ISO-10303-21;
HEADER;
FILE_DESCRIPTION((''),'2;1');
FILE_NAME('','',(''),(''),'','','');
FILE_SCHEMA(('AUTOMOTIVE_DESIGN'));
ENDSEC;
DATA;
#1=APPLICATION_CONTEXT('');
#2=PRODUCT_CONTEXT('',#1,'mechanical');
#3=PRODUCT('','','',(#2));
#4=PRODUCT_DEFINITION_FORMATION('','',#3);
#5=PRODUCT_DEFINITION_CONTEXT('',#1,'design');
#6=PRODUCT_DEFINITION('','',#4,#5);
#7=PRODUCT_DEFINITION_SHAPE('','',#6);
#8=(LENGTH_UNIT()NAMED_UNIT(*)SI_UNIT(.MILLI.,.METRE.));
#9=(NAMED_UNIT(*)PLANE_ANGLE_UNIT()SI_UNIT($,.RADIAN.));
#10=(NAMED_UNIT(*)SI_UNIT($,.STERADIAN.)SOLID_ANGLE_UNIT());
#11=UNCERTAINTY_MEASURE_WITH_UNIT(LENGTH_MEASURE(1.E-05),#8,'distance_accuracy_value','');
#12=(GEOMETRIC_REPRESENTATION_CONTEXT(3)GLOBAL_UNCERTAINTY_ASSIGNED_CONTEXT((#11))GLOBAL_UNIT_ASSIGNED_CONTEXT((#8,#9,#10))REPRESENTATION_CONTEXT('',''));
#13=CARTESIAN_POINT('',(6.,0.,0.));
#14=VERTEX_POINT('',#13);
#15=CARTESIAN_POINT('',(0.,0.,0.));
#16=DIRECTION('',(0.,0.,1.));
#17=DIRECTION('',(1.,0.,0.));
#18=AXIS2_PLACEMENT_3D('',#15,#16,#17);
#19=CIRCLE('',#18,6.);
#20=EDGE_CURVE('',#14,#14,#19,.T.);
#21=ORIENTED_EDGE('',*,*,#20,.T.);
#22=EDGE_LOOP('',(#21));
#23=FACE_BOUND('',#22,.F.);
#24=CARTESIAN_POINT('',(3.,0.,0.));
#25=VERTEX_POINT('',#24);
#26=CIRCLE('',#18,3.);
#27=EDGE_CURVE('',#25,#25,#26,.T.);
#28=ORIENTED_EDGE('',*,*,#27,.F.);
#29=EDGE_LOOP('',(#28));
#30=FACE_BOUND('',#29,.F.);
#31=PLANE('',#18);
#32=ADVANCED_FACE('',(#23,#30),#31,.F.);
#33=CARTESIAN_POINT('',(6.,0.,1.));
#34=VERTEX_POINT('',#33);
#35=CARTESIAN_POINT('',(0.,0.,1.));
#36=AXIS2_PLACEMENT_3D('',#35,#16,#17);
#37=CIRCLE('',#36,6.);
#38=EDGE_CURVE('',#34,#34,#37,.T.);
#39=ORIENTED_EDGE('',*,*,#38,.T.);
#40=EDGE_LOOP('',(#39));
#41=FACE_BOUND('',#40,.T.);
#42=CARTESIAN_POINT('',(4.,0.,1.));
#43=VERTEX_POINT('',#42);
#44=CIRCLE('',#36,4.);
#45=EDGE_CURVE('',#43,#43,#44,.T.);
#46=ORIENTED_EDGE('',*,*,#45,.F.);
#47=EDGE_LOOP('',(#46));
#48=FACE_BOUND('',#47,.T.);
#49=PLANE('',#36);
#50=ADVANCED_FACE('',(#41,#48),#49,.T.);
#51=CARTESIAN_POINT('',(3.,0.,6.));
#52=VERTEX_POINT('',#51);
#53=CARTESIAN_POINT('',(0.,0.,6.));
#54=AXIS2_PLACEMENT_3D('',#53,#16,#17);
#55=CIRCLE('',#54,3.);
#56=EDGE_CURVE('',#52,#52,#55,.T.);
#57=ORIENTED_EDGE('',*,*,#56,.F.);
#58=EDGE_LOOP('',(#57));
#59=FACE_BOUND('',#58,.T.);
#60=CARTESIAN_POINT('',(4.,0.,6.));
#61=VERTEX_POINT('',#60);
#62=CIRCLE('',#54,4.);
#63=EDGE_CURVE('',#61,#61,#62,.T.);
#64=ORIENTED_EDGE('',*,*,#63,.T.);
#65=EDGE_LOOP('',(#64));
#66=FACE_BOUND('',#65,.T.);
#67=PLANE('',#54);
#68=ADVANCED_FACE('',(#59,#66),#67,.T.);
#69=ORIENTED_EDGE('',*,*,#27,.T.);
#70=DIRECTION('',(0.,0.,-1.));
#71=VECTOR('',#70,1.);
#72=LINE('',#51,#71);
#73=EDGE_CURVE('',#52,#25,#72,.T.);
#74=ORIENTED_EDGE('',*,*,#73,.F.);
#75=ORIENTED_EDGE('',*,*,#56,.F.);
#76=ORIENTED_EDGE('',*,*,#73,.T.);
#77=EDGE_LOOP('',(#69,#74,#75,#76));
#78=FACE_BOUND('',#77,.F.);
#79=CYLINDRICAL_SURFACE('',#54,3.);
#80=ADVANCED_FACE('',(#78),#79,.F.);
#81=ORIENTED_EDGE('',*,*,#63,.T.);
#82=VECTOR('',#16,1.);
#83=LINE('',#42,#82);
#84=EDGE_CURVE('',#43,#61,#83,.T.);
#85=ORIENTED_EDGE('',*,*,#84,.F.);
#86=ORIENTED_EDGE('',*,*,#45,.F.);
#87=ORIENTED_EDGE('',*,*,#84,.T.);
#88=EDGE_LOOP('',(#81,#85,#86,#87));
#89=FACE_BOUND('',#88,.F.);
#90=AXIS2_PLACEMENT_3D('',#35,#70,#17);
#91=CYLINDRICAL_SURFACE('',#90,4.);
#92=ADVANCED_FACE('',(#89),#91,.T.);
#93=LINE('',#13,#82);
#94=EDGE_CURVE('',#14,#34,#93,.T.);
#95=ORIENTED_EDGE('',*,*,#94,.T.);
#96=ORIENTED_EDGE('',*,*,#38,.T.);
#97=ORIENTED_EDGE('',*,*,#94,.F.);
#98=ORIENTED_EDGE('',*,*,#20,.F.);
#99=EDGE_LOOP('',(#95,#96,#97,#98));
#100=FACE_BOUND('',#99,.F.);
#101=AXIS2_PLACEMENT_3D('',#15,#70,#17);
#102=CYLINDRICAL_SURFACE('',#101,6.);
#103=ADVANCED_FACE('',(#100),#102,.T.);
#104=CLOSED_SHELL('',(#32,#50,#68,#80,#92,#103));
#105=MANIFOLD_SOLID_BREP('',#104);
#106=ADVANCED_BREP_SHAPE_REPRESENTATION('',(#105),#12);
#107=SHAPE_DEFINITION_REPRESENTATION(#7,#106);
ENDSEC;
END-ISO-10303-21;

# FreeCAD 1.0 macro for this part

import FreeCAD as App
import Part
import Sketcher
from FreeCAD import Vector

doc = App.newDocument("Part")
params = doc.addObject("Spreadsheet::Sheet", "Params")
for row, (alias, value) in enumerate([
    ("sketch1_diameter", "12 mm"),
    ("pad1_length", "1 mm"),
    ("sketch2_diameter", "8 mm"),
    ("pad2_length", "5 mm"),
    ("sketch3_diameter", "6 mm"),
    ("pocket1_length", "6 mm"),
], start=1):
    params.set(f"A{row}", alias)
    params.set(f"B{row}", "=" + value)
    params.setAlias(f"B{row}", alias)

body = doc.addObject("PartDesign::Body", "Body")

sketch1 = doc.addObject("Sketcher::SketchObject", "Sketch")
body.addObject(sketch1)
sketch1.AttachmentSupport = (doc.XY_Plane, [""])
sketch1.MapMode = "FlatFace"
sketch1.addGeometry(Part.Circle(Vector(0, 0, 0), Vector(0, 0, 1), 6), False)
sketch1.addConstraint([
    Sketcher.Constraint("Coincident", 0, 3, -1, 1),
    Sketcher.Constraint("Diameter", 0, 12.0),
])
sketch1.setExpression("Constraints[1]", "Params.sketch1_diameter")
pad1 = doc.addObject("PartDesign::Pad", "Pad")
body.addObject(pad1)
pad1.Profile = sketch1
pad1.setExpression("Length", "Params.pad1_length")

sketch2 = doc.addObject("Sketcher::SketchObject", "Sketch001")
body.addObject(sketch2)
sketch2.AttachmentSupport = (doc.XY_Plane, [""])
sketch2.MapMode = "FlatFace"
sketch2.AttachmentOffset = App.Placement(Vector(0, 0, 1), App.Rotation())
sketch2.addGeometry(Part.Circle(Vector(0, 0, 0), Vector(0, 0, 1), 4), False)
sketch2.addConstraint([
    Sketcher.Constraint("Coincident", 0, 3, -1, 1),
    Sketcher.Constraint("Diameter", 0, 8.0),
])
sketch2.setExpression("Constraints[1]", "Params.sketch2_diameter")
pad2 = doc.addObject("PartDesign::Pad", "Pad001")
body.addObject(pad2)
pad2.Profile = sketch2
pad2.setExpression("Length", "Params.pad2_length")

sketch3 = doc.addObject("Sketcher::SketchObject", "Sketch002")
body.addObject(sketch3)
sketch3.AttachmentSupport = (doc.XY_Plane, [""])
sketch3.MapMode = "FlatFace"
sketch3.AttachmentOffset = App.Placement(Vector(0, 0, 6), App.Rotation())
sketch3.addGeometry(Part.Circle(Vector(0, 0, 0), Vector(0, 0, 1), 3), False)
sketch3.addConstraint([
    Sketcher.Constraint("Coincident", 0, 3, -1, 1),
    Sketcher.Constraint("Diameter", 0, 6.0),
])
sketch3.setExpression("Constraints[1]", "Params.sketch3_diameter")
pocket1 = doc.addObject("PartDesign::Pocket", "Pocket")
body.addObject(pocket1)
pocket1.Profile = sketch3
pocket1.setExpression("Length", "Params.pocket1_length")

doc.recompute()
